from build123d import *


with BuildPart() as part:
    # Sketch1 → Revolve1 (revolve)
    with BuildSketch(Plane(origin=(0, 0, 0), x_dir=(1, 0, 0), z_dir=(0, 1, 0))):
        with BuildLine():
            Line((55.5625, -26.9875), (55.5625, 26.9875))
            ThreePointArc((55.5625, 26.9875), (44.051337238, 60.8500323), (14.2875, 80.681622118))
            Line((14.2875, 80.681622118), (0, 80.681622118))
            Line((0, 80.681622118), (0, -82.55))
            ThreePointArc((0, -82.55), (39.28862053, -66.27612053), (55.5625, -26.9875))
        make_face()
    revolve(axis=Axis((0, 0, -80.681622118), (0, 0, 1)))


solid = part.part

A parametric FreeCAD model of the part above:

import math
import FreeCAD as App
import Part
import Sketcher

V = App.Vector
Q = App.Units.Quantity

doc = App.newDocument("Part")
body = doc.addObject("PartDesign::Body", "Body")

# Sketch on XZ plane
sketch1 = doc.addObject("Sketcher::SketchObject", "Sketch")
body.addObject(sketch1)
sketch1.AttachmentSupport = (doc.XZ_Plane, [""])
sketch1.MapMode = "FlatFace"
sketch1.addGeometry(Part.LineSegment(V(56, 27, 0), V(56, -27, 0)), False)
sketch1.addGeometry(Part.ArcOfCircle(Part.Circle(V(0, -27, 0), V(0, 0, 1), 56), math.radians(-75), math.radians(0)), False)
sketch1.addGeometry(Part.LineSegment(V(14, -81, 0), V(0, -81, 0)), False)
sketch1.addGeometry(Part.LineSegment(V(0, -81, 0), V(0, 83, 0)), False)
sketch1.addGeometry(Part.ArcOfCircle(Part.Circle(V(0, 27, 0), V(0, 0, 1), 56), math.radians(0), math.radians(90)), False)
sketch1.addConstraint(Sketcher.Constraint("Tangent", 0, 2, 1, 2))
sketch1.addConstraint(Sketcher.Constraint("Coincident", 1, 1, 2, 1))
sketch1.addConstraint(Sketcher.Constraint("Coincident", 2, 2, 3, 1))
sketch1.addConstraint(Sketcher.Constraint("Coincident", 3, 2, 4, 2))
sketch1.addConstraint(Sketcher.Constraint("Tangent", 4, 1, 0, 1))
sketch1.addConstraint(Sketcher.Constraint("Vertical", 0))
sketch1.addConstraint(Sketcher.Constraint("Horizontal", 2))
sketch1.addConstraint(Sketcher.Constraint("Vertical", 3))
sketch1.addConstraint(Sketcher.Constraint("Equal", 1, 4))
sketch1.addConstraint(Sketcher.Constraint("Symmetric", 1, 3, 4, 3, -1, 1))
sketch1.addConstraint(Sketcher.Constraint("PointOnObject", 2, 2, -2))
sketch1.addConstraint(Sketcher.Constraint("Radius", 1, Q("2.1875 in")))
sketch1.addConstraint(Sketcher.Constraint("DistanceX", 2, 2, 2, 1, Q("0.5625 in")))
sketch1.addConstraint(Sketcher.Constraint("DistanceY", 0, 2, 0, 1, Q("2.125 in")))
revolution = doc.addObject("PartDesign::Revolution", "Revolution")
body.addObject(revolution)
revolution.Profile = sketch1
revolution.ReferenceAxis = (sketch1, ["V_Axis"])
revolution.Angle = 360

doc.recompute()
